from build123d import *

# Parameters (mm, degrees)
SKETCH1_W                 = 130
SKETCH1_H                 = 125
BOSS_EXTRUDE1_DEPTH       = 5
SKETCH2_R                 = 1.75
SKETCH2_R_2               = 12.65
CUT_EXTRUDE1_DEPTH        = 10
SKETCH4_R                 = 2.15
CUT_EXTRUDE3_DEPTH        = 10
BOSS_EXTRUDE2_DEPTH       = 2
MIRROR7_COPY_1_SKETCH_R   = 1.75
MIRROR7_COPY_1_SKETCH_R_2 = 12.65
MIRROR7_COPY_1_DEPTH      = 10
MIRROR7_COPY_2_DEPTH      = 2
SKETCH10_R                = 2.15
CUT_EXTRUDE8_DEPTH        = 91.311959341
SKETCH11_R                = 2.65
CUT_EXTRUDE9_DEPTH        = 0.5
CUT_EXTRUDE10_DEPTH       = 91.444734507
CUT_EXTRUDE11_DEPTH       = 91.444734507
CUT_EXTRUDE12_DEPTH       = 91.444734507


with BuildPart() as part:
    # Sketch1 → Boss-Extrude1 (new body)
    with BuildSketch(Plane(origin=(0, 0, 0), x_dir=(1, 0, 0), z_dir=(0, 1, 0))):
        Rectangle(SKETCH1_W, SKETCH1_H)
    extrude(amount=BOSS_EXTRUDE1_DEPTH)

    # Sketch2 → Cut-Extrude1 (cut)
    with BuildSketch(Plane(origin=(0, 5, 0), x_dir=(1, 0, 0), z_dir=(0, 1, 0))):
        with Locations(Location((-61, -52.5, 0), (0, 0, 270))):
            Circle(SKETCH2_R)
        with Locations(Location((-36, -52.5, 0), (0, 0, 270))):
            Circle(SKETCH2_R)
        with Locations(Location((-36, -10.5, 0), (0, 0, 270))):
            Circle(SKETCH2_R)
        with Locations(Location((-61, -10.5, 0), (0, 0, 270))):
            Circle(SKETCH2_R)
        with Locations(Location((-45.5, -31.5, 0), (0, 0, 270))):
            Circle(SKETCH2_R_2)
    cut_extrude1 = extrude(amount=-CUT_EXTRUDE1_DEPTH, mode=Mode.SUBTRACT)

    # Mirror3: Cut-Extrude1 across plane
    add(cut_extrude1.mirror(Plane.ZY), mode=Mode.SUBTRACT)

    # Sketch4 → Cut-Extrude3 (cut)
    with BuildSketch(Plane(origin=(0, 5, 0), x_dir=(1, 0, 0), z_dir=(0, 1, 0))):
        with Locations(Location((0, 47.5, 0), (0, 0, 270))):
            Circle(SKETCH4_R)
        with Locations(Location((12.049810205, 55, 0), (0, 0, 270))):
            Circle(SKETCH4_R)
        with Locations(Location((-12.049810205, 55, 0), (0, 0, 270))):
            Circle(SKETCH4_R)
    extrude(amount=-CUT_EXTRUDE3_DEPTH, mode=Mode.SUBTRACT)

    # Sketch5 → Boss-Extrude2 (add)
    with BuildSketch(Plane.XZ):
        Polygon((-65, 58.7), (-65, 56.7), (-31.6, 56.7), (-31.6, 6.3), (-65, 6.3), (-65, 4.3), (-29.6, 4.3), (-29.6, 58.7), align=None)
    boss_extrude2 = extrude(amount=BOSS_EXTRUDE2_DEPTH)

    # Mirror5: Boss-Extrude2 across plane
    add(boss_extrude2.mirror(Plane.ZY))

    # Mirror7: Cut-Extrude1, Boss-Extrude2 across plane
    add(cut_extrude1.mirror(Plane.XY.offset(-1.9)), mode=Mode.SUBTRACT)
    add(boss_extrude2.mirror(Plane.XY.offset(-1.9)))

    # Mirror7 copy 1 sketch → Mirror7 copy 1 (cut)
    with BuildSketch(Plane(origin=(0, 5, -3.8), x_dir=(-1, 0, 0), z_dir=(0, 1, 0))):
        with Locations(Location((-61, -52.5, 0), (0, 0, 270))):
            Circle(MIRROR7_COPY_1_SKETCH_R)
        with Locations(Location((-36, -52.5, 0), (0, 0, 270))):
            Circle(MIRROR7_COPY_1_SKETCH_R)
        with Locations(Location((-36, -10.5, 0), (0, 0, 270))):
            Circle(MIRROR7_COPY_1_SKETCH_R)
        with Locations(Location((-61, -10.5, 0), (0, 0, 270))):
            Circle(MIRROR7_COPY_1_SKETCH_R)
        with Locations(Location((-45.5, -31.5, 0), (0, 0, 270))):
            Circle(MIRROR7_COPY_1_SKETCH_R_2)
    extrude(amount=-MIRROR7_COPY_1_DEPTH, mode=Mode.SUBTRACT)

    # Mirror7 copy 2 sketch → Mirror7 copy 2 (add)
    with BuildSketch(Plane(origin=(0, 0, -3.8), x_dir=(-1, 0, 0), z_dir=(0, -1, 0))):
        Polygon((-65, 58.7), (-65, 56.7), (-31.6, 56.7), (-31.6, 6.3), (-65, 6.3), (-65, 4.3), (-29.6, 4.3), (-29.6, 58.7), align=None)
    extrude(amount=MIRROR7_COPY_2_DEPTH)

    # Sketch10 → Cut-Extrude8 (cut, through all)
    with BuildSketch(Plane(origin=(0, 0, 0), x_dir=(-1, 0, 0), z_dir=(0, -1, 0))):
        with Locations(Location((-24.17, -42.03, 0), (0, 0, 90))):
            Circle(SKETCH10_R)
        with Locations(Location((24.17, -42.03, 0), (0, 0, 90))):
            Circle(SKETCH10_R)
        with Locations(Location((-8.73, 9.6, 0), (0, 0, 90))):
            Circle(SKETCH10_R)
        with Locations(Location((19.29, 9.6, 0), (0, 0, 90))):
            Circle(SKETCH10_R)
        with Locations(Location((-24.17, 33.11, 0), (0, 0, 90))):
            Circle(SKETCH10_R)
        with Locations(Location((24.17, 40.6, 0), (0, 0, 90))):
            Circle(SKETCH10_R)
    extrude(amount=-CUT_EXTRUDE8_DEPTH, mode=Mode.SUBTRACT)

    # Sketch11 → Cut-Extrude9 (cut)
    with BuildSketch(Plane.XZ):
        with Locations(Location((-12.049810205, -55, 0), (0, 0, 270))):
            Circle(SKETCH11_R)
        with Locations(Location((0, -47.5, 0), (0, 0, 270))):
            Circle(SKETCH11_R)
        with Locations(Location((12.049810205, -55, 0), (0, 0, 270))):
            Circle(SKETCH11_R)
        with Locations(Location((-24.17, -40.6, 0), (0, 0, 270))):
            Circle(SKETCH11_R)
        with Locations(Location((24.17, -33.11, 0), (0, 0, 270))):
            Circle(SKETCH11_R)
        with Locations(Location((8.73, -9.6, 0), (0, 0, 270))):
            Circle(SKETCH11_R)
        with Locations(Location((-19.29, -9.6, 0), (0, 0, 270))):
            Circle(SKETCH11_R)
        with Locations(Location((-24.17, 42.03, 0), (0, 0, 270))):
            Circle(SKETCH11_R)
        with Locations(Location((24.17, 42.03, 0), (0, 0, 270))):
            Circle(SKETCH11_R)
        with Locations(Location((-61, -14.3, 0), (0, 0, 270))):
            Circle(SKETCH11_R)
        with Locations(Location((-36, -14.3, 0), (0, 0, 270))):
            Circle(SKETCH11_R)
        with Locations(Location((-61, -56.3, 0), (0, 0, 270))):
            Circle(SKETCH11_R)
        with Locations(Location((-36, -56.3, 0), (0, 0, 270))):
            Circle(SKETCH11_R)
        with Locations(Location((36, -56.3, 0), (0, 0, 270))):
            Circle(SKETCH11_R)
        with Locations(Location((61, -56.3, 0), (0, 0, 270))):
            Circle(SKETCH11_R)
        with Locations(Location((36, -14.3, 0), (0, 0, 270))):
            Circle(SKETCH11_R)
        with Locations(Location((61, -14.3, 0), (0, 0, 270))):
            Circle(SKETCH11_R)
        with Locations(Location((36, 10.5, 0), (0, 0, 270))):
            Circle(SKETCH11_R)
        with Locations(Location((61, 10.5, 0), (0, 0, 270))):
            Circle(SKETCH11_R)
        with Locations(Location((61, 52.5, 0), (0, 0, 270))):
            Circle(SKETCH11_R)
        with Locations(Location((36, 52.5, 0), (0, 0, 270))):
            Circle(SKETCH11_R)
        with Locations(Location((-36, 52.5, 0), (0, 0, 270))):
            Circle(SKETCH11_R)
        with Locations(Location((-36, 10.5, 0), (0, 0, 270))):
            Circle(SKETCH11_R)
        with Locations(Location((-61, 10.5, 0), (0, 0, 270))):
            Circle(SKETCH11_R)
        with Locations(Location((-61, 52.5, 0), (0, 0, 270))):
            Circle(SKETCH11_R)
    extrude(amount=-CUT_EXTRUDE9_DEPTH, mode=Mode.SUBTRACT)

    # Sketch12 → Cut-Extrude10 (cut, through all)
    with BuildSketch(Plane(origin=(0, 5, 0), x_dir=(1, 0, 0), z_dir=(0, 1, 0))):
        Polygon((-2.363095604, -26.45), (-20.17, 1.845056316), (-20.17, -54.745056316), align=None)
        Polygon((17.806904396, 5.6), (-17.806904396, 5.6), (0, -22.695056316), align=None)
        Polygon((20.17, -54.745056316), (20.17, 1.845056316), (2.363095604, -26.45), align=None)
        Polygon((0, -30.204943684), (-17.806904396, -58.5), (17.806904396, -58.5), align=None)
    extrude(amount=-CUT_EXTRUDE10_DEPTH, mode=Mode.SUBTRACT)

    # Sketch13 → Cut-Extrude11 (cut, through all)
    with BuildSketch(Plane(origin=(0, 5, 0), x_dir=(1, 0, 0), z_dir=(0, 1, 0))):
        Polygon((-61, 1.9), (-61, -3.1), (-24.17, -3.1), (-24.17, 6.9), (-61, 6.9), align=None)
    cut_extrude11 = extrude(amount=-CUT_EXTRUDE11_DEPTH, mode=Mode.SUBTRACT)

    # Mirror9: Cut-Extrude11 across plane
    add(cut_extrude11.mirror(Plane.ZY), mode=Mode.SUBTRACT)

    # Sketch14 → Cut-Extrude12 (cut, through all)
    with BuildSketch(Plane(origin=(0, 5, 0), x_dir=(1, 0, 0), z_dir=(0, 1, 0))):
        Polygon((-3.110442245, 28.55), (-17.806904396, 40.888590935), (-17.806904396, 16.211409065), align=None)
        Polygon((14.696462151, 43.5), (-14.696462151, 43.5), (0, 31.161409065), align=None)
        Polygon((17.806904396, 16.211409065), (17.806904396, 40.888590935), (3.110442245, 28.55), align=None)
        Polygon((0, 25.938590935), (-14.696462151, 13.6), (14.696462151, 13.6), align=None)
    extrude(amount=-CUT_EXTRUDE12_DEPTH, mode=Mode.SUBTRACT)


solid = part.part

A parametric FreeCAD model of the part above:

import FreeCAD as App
import Part
import Sketcher

V = App.Vector

doc = App.newDocument("Part")
body = doc.addObject("PartDesign::Body", "Body")

sketch1 = body.newObject("Sketcher::SketchObject", "Sketch")
sketch1.AttachmentSupport = (doc.getObject("XZ_Plane"), [""])
sketch1.MapMode = "FlatFace"
sketch1.addGeometry([
    Part.LineSegment(V(-65, -62, 0), V(-65, 62, 0)),
    Part.LineSegment(V(-65, 62, 0), V(65, 62, 0)),
    Part.LineSegment(V(65, 62, 0), V(65, -62, 0)),
    Part.LineSegment(V(65, -62, 0), V(-65, -62, 0)),
], False)
sketch1.addConstraint([
    Sketcher.Constraint("Coincident", 0, 2, 1, 1),
    Sketcher.Constraint("Coincident", 1, 2, 2, 1),
    Sketcher.Constraint("Coincident", 2, 2, 3, 1),
    Sketcher.Constraint("Coincident", 3, 2, 0, 1),
    Sketcher.Constraint("Vertical", 0),
    Sketcher.Constraint("Horizontal", 1),
    Sketcher.Constraint("Vertical", 2),
    Sketcher.Constraint("Horizontal", 3),
    Sketcher.Constraint("Symmetric", 0, 2, 2, 2, -1, 1),
    Sketcher.Constraint("DistanceX", 1, 1, 1, 2, 130.0),
    Sketcher.Constraint("DistanceY", 0, 1, 0, 2, 125.0),
])
pad1 = body.newObject("PartDesign::Pad", "Pad")
pad1.Profile = sketch1
pad1.Length = 5
pad1.Reversed = True

sketch2 = body.newObject("Sketcher::SketchObject", "Sketch001")
sketch2.AttachmentSupport = (doc.getObject("XZ_Plane"), [""])
sketch2.MapMode = "FlatFace"
sketch2.AttachmentOffset = App.Placement(V(0, 0, -5), App.Rotation())
sketch2.addGeometry([
    Part.Circle(V(-61, 52.5, 0), V(0, 0, 1), 1.8),
    Part.Circle(V(-36, 52.5, 0), V(0, 0, 1), 1.8),
    Part.Circle(V(-36, 10.5, 0), V(0, 0, 1), 1.8),
    Part.Circle(V(-61, 10.5, 0), V(0, 0, 1), 1.8),
    Part.Circle(V(-45.5, 31.5, 0), V(0, 0, 1), 12.7),
], False)
sketch2.addConstraint([
    Sketcher.Constraint("Equal", 0, 1),
    Sketcher.Constraint("Equal", 1, 2),
    Sketcher.Constraint("Equal", 2, 3),
    Sketcher.Constraint("Horizontal", 0, 3, 1, 3),
    Sketcher.Constraint("Horizontal", 2, 3, 3, 3),
    Sketcher.Constraint("Vertical", 1, 3, 2, 3),
    Sketcher.Constraint("Vertical", 0, 3, 3, 3),
    Sketcher.Constraint("Diameter", 0, 3.5),
    Sketcher.Constraint("Diameter", 4, 25.3),
    Sketcher.Constraint("DistanceX", 0, 3, -1, 1, 61.0),
    Sketcher.Constraint("DistanceX", 1, 3, -1, 1, 36.0),
    Sketcher.Constraint("DistanceY", 2, 3, 1, 3, 42.0),
    Sketcher.Constraint("DistanceY", 4, 3, 1, 3, 21.0),
    Sketcher.Constraint("DistanceY", -1, 1, 0, 3, 52.5),
    Sketcher.Constraint("DistanceX", 4, 3, -1, 1, 45.5),
])
pocket1 = body.newObject("PartDesign::Pocket", "Pocket")
pocket1.Profile = sketch2
pocket1.Length = 10
pocket1.Reversed = True
doc.recompute()

mirrored = body.newObject("PartDesign::Mirrored", "Mirrored")
mirrored.Originals = [pocket1]
mirrored.MirrorPlane = (doc.getObject("YZ_Plane"), [""])
body.Tip = mirrored

sketch3 = body.newObject("Sketcher::SketchObject", "Sketch002")
sketch3.AttachmentSupport = (doc.getObject("XZ_Plane"), [""])
sketch3.MapMode = "FlatFace"
sketch3.AttachmentOffset = App.Placement(V(0, 0, -5), App.Rotation())
sketch3.addGeometry([
    Part.Circle(V(0, -47.5, 0), V(0, 0, 1), 2.1),
    Part.Circle(V(12, -55, 0), V(0, 0, 1), 2.1),
    Part.Circle(V(-12, -55, 0), V(0, 0, 1), 2.1),
], False)
sketch3.addConstraint([
    Sketcher.Constraint("Equal", 0, 1),
    Sketcher.Constraint("Equal", 1, 2),
    Sketcher.Constraint("Symmetric", 1, 3, 2, 3, -2),
    Sketcher.Constraint("PointOnObject", 0, 3, -2),
    Sketcher.Constraint("Diameter", 0, 4.3),
    Sketcher.Constraint("DistanceY", 1, 3, -1, 1, 55.0),
    Sketcher.Constraint("DistanceY", 0, 3, -1, 1, 47.5),
    Sketcher.Constraint("DistanceX", -1, 1, 1, 3, 12.04981),
])
pocket2 = body.newObject("PartDesign::Pocket", "Pocket001")
pocket2.Profile = sketch3
pocket2.Length = 10
pocket2.Reversed = True

sketch4 = body.newObject("Sketcher::SketchObject", "Sketch003")
sketch4.AttachmentSupport = (doc.getObject("XZ_Plane"), [""])
sketch4.MapMode = "FlatFace"
sketch4.addGeometry([
    Part.LineSegment(V(-65, 58.7, 0), V(-65, 56.7, 0)),
    Part.LineSegment(V(-65, 56.7, 0), V(-31.6, 56.7, 0)),
    Part.LineSegment(V(-31.6, 56.7, 0), V(-31.6, 6.3, 0)),
    Part.LineSegment(V(-31.6, 6.3, 0), V(-65, 6.3, 0)),
    Part.LineSegment(V(-65, 6.3, 0), V(-65, 4.3, 0)),
    Part.LineSegment(V(-65, 4.3, 0), V(-29.6, 4.3, 0)),
    Part.LineSegment(V(-29.6, 4.3, 0), V(-29.6, 58.7, 0)),
    Part.LineSegment(V(-29.6, 58.7, 0), V(-65, 58.7, 0)),
], False)
sketch4.addConstraint([
    Sketcher.Constraint("Coincident", 0, 2, 1, 1),
    Sketcher.Constraint("Coincident", 1, 2, 2, 1),
    Sketcher.Constraint("Coincident", 2, 2, 3, 1),
    Sketcher.Constraint("Coincident", 3, 2, 4, 1),
    Sketcher.Constraint("Coincident", 4, 2, 5, 1),
    Sketcher.Constraint("Coincident", 5, 2, 6, 1),
    Sketcher.Constraint("Coincident", 6, 2, 7, 1),
    Sketcher.Constraint("Coincident", 7, 2, 0, 1),
    Sketcher.Constraint("Vertical", 0),
    Sketcher.Constraint("Horizontal", 1),
    Sketcher.Constraint("Vertical", 2),
    Sketcher.Constraint("Horizontal", 3),
    Sketcher.Constraint("Vertical", 4),
    Sketcher.Constraint("Horizontal", 5),
    Sketcher.Constraint("Vertical", 6),
    Sketcher.Constraint("Horizontal", 7),
    Sketcher.Constraint("Vertical", 0, 2, 3, 2),
    Sketcher.Constraint("Equal", 0, 4),
    Sketcher.Constraint("DistanceY", 0, 2, 0, 1, 2.0),
    Sketcher.Constraint("DistanceX", 1, 1, 1, 2, 33.4),
    Sketcher.Constraint("DistanceX", 5, 1, 5, 2, 35.4),
    Sketcher.Constraint("DistanceY", 2, 2, 2, 1, 50.4),
    Sketcher.Constraint("DistanceX", 0, 2, -1, 1, 65.0),
    Sketcher.Constraint("DistanceY", -1, 1, 0, 2, 56.7),
])
pad2 = body.newObject("PartDesign::Pad", "Pad001")
pad2.Profile = sketch4
pad2.Length = 2
doc.recompute()

mirrored2 = body.newObject("PartDesign::Mirrored", "Mirrored001")
mirrored2.Originals = [pad2]
mirrored2.MirrorPlane = (doc.getObject("YZ_Plane"), [""])
body.Tip = mirrored2
doc.recompute()

datumplane = body.newObject("PartDesign::Plane", "DatumPlane")
datumplane.AttachmentSupport = (doc.getObject("XY_Plane"), [""])
datumplane.MapMode = "FlatFace"
datumplane.AttachmentOffset = App.Placement(V(0, 0, -1.9), App.Rotation())
mirrored3 = body.newObject("PartDesign::Mirrored", "Mirrored002")
mirrored3.Originals = [pocket1, pad2]
mirrored3.MirrorPlane = (datumplane, [""])
body.Tip = mirrored3

sketch5 = body.newObject("Sketcher::SketchObject", "Sketch004")
sketch5.AttachmentSupport = (doc.getObject("XZ_Plane"), [""])
sketch5.MapMode = "FlatFace"
sketch5.AttachmentOffset = App.Placement(V(0, 0, -5), App.Rotation())
sketch5.addGeometry([
    Part.Circle(V(61, -56.3, 0), V(0, 0, 1), 1.8),
    Part.Circle(V(36, -56.3, 0), V(0, 0, 1), 1.8),
    Part.Circle(V(36, -14.3, 0), V(0, 0, 1), 1.8),
    Part.Circle(V(61, -14.3, 0), V(0, 0, 1), 1.8),
    Part.Circle(V(45.5, -35.3, 0), V(0, 0, 1), 12.7),
], False)
sketch5.addConstraint([
    Sketcher.Constraint("Equal", 0, 1),
    Sketcher.Constraint("Equal", 1, 2),
    Sketcher.Constraint("Equal", 2, 3),
    Sketcher.Constraint("Horizontal", 0, 3, 1, 3),
    Sketcher.Constraint("Horizontal", 2, 3, 3, 3),
    Sketcher.Constraint("Vertical", 1, 3, 2, 3),
    Sketcher.Constraint("Vertical", 0, 3, 3, 3),
    Sketcher.Constraint("Diameter", 0, 3.5),
    Sketcher.Constraint("Diameter", 4, 25.3),
    Sketcher.Constraint("DistanceX", -1, 1, 0, 3, 61.0),
    Sketcher.Constraint("DistanceX", -1, 1, 1, 3, 36.0),
    Sketcher.Constraint("DistanceY", 1, 3, 2, 3, 42.0),
    Sketcher.Constraint("DistanceY", 4, 3, 2, 3, 21.0),
    Sketcher.Constraint("DistanceY", 0, 3, -1, 1, 56.3),
    Sketcher.Constraint("DistanceX", -1, 1, 4, 3, 45.5),
])
pocket3 = body.newObject("PartDesign::Pocket", "Pocket002")
pocket3.Profile = sketch5
pocket3.Length = 10
pocket3.Reversed = True

sketch6 = body.newObject("Sketcher::SketchObject", "Sketch005")
sketch6.AttachmentSupport = (doc.getObject("XZ_Plane"), [""])
sketch6.MapMode = "FlatFace"
sketch6.addGeometry([
    Part.LineSegment(V(65, -62.5, 0), V(65, -60.5, 0)),
    Part.LineSegment(V(65, -60.5, 0), V(31.6, -60.5, 0)),
    Part.LineSegment(V(31.6, -60.5, 0), V(31.6, -10.1, 0)),
    Part.LineSegment(V(31.6, -10.1, 0), V(65, -10.1, 0)),
    Part.LineSegment(V(65, -10.1, 0), V(65, -8.1, 0)),
    Part.LineSegment(V(65, -8.1, 0), V(29.6, -8.1, 0)),
    Part.LineSegment(V(29.6, -8.1, 0), V(29.6, -62.5, 0)),
    Part.LineSegment(V(29.6, -62.5, 0), V(65, -62.5, 0)),
], False)
sketch6.addConstraint([
    Sketcher.Constraint("Coincident", 0, 2, 1, 1),
    Sketcher.Constraint("Coincident", 1, 2, 2, 1),
    Sketcher.Constraint("Coincident", 2, 2, 3, 1),
    Sketcher.Constraint("Coincident", 3, 2, 4, 1),
    Sketcher.Constraint("Coincident", 4, 2, 5, 1),
    Sketcher.Constraint("Coincident", 5, 2, 6, 1),
    Sketcher.Constraint("Coincident", 6, 2, 7, 1),
    Sketcher.Constraint("Coincident", 7, 2, 0, 1),
    Sketcher.Constraint("Vertical", 0),
    Sketcher.Constraint("Horizontal", 1),
    Sketcher.Constraint("Vertical", 2),
    Sketcher.Constraint("Horizontal", 3),
    Sketcher.Constraint("Vertical", 4),
    Sketcher.Constraint("Horizontal", 5),
    Sketcher.Constraint("Vertical", 6),
    Sketcher.Constraint("Horizontal", 7),
    Sketcher.Constraint("Vertical", 0, 2, 3, 2),
    Sketcher.Constraint("Equal", 0, 4),
    Sketcher.Constraint("DistanceY", 0, 1, 0, 2, 2.0),
    Sketcher.Constraint("DistanceX", 1, 2, 1, 1, 33.4),
    Sketcher.Constraint("DistanceX", 5, 2, 5, 1, 35.4),
    Sketcher.Constraint("DistanceY", 2, 1, 2, 2, 50.4),
    Sketcher.Constraint("DistanceX", -1, 1, 0, 2, 65.0),
    Sketcher.Constraint("DistanceY", 0, 2, -1, 1, 60.5),
])
pad3 = body.newObject("PartDesign::Pad", "Pad002")
pad3.Profile = sketch6
pad3.Length = 2

sketch7 = body.newObject("Sketcher::SketchObject", "Sketch006")
sketch7.AttachmentSupport = (doc.getObject("XZ_Plane"), [""])
sketch7.MapMode = "FlatFace"
sketch7.addGeometry([
    Part.Circle(V(24.2, 42, 0), V(0, 0, 1), 2.1),
    Part.Circle(V(-24.2, 42, 0), V(0, 0, 1), 2.1),
    Part.Circle(V(8.7, -9.6, 0), V(0, 0, 1), 2.1),
    Part.Circle(V(-19.3, -9.6, 0), V(0, 0, 1), 2.1),
    Part.Circle(V(24.2, -33.1, 0), V(0, 0, 1), 2.1),
    Part.Circle(V(-24.2, -40.6, 0), V(0, 0, 1), 2.1),
], False)
sketch7.addConstraint([
    Sketcher.Constraint("Equal", 0, 1),
    Sketcher.Constraint("Equal", 1, 2),
    Sketcher.Constraint("Equal", 2, 3),
    Sketcher.Constraint("Equal", 3, 4),
    Sketcher.Constraint("Equal", 4, 5),
    Sketcher.Constraint("Symmetric", 0, 3, 1, 3, -2),
    Sketcher.Constraint("Horizontal", 2, 3, 3, 3),
    Sketcher.Constraint("Vertical", 0, 3, 4, 3),
    Sketcher.Constraint("Vertical", 1, 3, 5, 3),
    Sketcher.Constraint("Diameter", 0, 4.3),
    Sketcher.Constraint("DistanceY", 5, 3, 3, 3, 31.0),
    Sketcher.Constraint("DistanceY", 2, 3, -1, 1, 9.6),
    Sketcher.Constraint("DistanceX", 1, 3, 2, 3, 32.9),
    Sketcher.Constraint("DistanceX", -1, 1, 0, 3, 24.17),
    Sketcher.Constraint("DistanceY", -1, 1, 0, 3, 42.03),
    Sketcher.Constraint("DistanceX", 3, 3, -1, 1, 19.29),
    Sketcher.Constraint("DistanceY", 4, 3, -1, 1, 33.11),
])
pocket4 = body.newObject("PartDesign::Pocket", "Pocket003")
pocket4.Profile = sketch7
pocket4.Type = "ThroughAll"

sketch8 = body.newObject("Sketcher::SketchObject", "Sketch007")
sketch8.AttachmentSupport = (doc.getObject("XZ_Plane"), [""])
sketch8.MapMode = "FlatFace"
sketch8.addGeometry([
    Part.Circle(V(-12, -55, 0), V(0, 0, 1), 2.6),
    Part.Circle(V(0, -47.5, 0), V(0, 0, 1), 2.6),
    Part.Circle(V(12, -55, 0), V(0, 0, 1), 2.6),
    Part.Circle(V(-24.2, -40.6, 0), V(0, 0, 1), 2.6),
    Part.Circle(V(24.2, -33.1, 0), V(0, 0, 1), 2.6),
    Part.Circle(V(8.7, -9.6, 0), V(0, 0, 1), 2.6),
    Part.Circle(V(-19.3, -9.6, 0), V(0, 0, 1), 2.6),
    Part.Circle(V(-24.2, 42, 0), V(0, 0, 1), 2.6),
    Part.Circle(V(24.2, 42, 0), V(0, 0, 1), 2.6),
    Part.Circle(V(-61, -14.3, 0), V(0, 0, 1), 2.6),
    Part.Circle(V(-36, -14.3, 0), V(0, 0, 1), 2.6),
    Part.Circle(V(-61, -56.3, 0), V(0, 0, 1), 2.6),
    Part.Circle(V(-36, -56.3, 0), V(0, 0, 1), 2.6),
    Part.Circle(V(36, -56.3, 0), V(0, 0, 1), 2.6),
    Part.Circle(V(61, -56.3, 0), V(0, 0, 1), 2.6),
    Part.Circle(V(36, -14.3, 0), V(0, 0, 1), 2.6),
    Part.Circle(V(61, -14.3, 0), V(0, 0, 1), 2.6),
    Part.Circle(V(36, 10.5, 0), V(0, 0, 1), 2.6),
    Part.Circle(V(61, 10.5, 0), V(0, 0, 1), 2.6),
    Part.Circle(V(61, 52.5, 0), V(0, 0, 1), 2.6),
    Part.Circle(V(36, 52.5, 0), V(0, 0, 1), 2.6),
    Part.Circle(V(-36, 52.5, 0), V(0, 0, 1), 2.6),
    Part.Circle(V(-36, 10.5, 0), V(0, 0, 1), 2.6),
    Part.Circle(V(-61, 10.5, 0), V(0, 0, 1), 2.6),
    Part.Circle(V(-61, 52.5, 0), V(0, 0, 1), 2.6),
], False)
sketch8.addConstraint([
    Sketcher.Constraint("Equal", 0, 1),
    Sketcher.Constraint("Equal", 1, 2),
    Sketcher.Constraint("Equal", 2, 3),
    Sketcher.Constraint("Equal", 3, 4),
    Sketcher.Constraint("Equal", 4, 5),
    Sketcher.Constraint("Equal", 5, 6),
    Sketcher.Constraint("Equal", 6, 7),
    Sketcher.Constraint("Equal", 7, 8),
    Sketcher.Constraint("Equal", 8, 9),
    Sketcher.Constraint("Equal", 9, 10),
    Sketcher.Constraint("Equal", 10, 11),
    Sketcher.Constraint("Equal", 11, 12),
    Sketcher.Constraint("Equal", 12, 13),
    Sketcher.Constraint("Equal", 13, 14),
    Sketcher.Constraint("Equal", 14, 15),
    Sketcher.Constraint("Equal", 15, 16),
    Sketcher.Constraint("Equal", 16, 17),
    Sketcher.Constraint("Equal", 17, 18),
    Sketcher.Constraint("Equal", 18, 19),
    Sketcher.Constraint("Equal", 19, 20),
    Sketcher.Constraint("Equal", 20, 21),
    Sketcher.Constraint("Equal", 21, 22),
    Sketcher.Constraint("Equal", 22, 23),
    Sketcher.Constraint("Equal", 23, 24),
    Sketcher.Constraint("Symmetric", 0, 3, 2, 3, -2),
    Sketcher.Constraint("Symmetric", 7, 3, 8, 3, -2),
    Sketcher.Constraint("Symmetric", 12, 3, 13, 3, -2),
    Sketcher.Constraint("Symmetric", 11, 3, 14, 3, -2),
    Sketcher.Constraint("Symmetric", 10, 3, 15, 3, -2),
    Sketcher.Constraint("Symmetric", 9, 3, 16, 3, -2),
    Sketcher.Constraint("Symmetric", 20, 3, 21, 3, -2),
    Sketcher.Constraint("Symmetric", 17, 3, 22, 3, -2),
    Sketcher.Constraint("Symmetric", 18, 3, 23, 3, -2),
    Sketcher.Constraint("Symmetric", 19, 3, 24, 3, -2),
    Sketcher.Constraint("PointOnObject", 1, 3, -2),
    Sketcher.Constraint("Horizontal", 5, 3, 6, 3),
    Sketcher.Constraint("Horizontal", 9, 3, 10, 3),
    Sketcher.Constraint("Horizontal", 11, 3, 12, 3),
    Sketcher.Constraint("Horizontal", 17, 3, 18, 3),
    Sketcher.Constraint("Horizontal", 19, 3, 20, 3),
    Sketcher.Constraint("Vertical", 3, 3, 7, 3),
    Sketcher.Constraint("Vertical", 4, 3, 8, 3),
    Sketcher.Constraint("Vertical", 9, 3, 11, 3),
    Sketcher.Constraint("Vertical", 10, 3, 12, 3),
    Sketcher.Constraint("Vertical", 15, 3, 17, 3),
    Sketcher.Constraint("Vertical", 16, 3, 18, 3),
    Sketcher.Constraint("Vertical", 18, 3, 19, 3),
    Sketcher.Constraint("Vertical", 17, 3, 20, 3),
    Sketcher.Constraint("Diameter", 0, 5.3),
    Sketcher.Constraint("DistanceY", 0, 3, -1, 1, 55.0),
    Sketcher.Constraint("DistanceX", 9, 3, -1, 1, 61.0),
    Sketcher.Constraint("DistanceX", 10, 3, -1, 1, 36.0),
    Sketcher.Constraint("DistanceY", 3, 3, 5, 3, 31.0),
    Sketcher.Constraint("DistanceY", 11, 3, 9, 3, 42.0),
    Sketcher.Constraint("DistanceY", 18, 3, 19, 3, 42.0),
    Sketcher.Constraint("DistanceY", 1, 3, -1, 1, 47.5),
    Sketcher.Constraint("DistanceY", 3, 3, -1, 1, 40.6),
    Sketcher.Constraint("DistanceY", 9, 3, -1, 1, 14.3),
    Sketcher.Constraint("DistanceY", -1, 1, 17, 3, 10.5),
    Sketcher.Constraint("DistanceX", 3, 3, 5, 3, 32.9),
    Sketcher.Constraint("DistanceX", 3, 3, -1, 1, 24.17),
    Sketcher.Constraint("DistanceY", 4, 3, -1, 1, 33.11),
    Sketcher.Constraint("DistanceX", 6, 3, -1, 1, 19.29),
    Sketcher.Constraint("DistanceY", -1, 1, 7, 3, 42.03),
    Sketcher.Constraint("DistanceX", 0, 3, -1, 1, 12.04981),
])
pocket5 = body.newObject("PartDesign::Pocket", "Pocket004")
pocket5.Profile = sketch8
pocket5.Length = 0.5

sketch9 = body.newObject("Sketcher::SketchObject", "Sketch008")
sketch9.AttachmentSupport = (doc.getObject("XZ_Plane"), [""])
sketch9.MapMode = "FlatFace"
sketch9.AttachmentOffset = App.Placement(V(0, 0, -5), App.Rotation())
sketch9.addGeometry([
    Part.LineSegment(V(-2, 26, 0), V(-20, -2, 0)),
    Part.LineSegment(V(-20, -2, 0), V(-20, 55, 0)),
    Part.LineSegment(V(-20, 55, 0), V(-2, 26, 0)),
    Part.LineSegment(V(18, -6, 0), V(-18, -6, 0)),
    Part.LineSegment(V(-18, -6, 0), V(0, 23, 0)),
    Part.LineSegment(V(0, 23, 0), V(18, -6, 0)),
    Part.LineSegment(V(20, 55, 0), V(20, -2, 0)),
    Part.LineSegment(V(20, -2, 0), V(2, 26, 0)),
    Part.LineSegment(V(2, 26, 0), V(20, 55, 0)),
    Part.LineSegment(V(0, 30, 0), V(-18, 58, 0)),
    Part.LineSegment(V(-18, 58, 0), V(18, 58, 0)),
    Part.LineSegment(V(18, 58, 0), V(0, 30, 0)),
], False)
sketch9.addConstraint([
    Sketcher.Constraint("Coincident", 0, 2, 1, 1),
    Sketcher.Constraint("Coincident", 1, 2, 2, 1),
    Sketcher.Constraint("Coincident", 2, 2, 0, 1),
    Sketcher.Constraint("Coincident", 3, 2, 4, 1),
    Sketcher.Constraint("Coincident", 4, 2, 5, 1),
    Sketcher.Constraint("Coincident", 5, 2, 3, 1),
    Sketcher.Constraint("Coincident", 6, 2, 7, 1),
    Sketcher.Constraint("Coincident", 7, 2, 8, 1),
    Sketcher.Constraint("Coincident", 8, 2, 6, 1),
    Sketcher.Constraint("Coincident", 9, 2, 10, 1),
    Sketcher.Constraint("Coincident", 10, 2, 11, 1),
    Sketcher.Constraint("Coincident", 11, 2, 9, 1),
    Sketcher.Constraint("Vertical", 1),
    Sketcher.Constraint("Horizontal", 3),
    Sketcher.Constraint("Vertical", 6),
    Sketcher.Constraint("Horizontal", 10),
    Sketcher.Constraint("Symmetric", 0, 2, 6, 2, -2),
    Sketcher.Constraint("Symmetric", 2, 2, 7, 2, -2),
    Sketcher.Constraint("PointOnObject", 4, 2, -2),
    Sketcher.Constraint("PointOnObject", 11, 2, -2),
    Sketcher.Constraint("Parallel", 0, 4),
    Sketcher.Constraint("Parallel", 2, 5),
    Sketcher.Constraint("Parallel", 5, 7),
    Sketcher.Constraint("Parallel", 4, 8),
    Sketcher.Constraint("Parallel", 7, 9),
    Sketcher.Constraint("Parallel", 8, 11),
    Sketcher.Constraint("Vertical", 3, 2, 9, 2),
    Sketcher.Constraint("Equal", 2, 4),
    Sketcher.Constraint("DistanceY", 3, 2, -1, 1, 5.6),
    Sketcher.Constraint("DistanceY", -1, 1, 9, 2, 58.5),
    Sketcher.Constraint("DistanceX", 0, 2, -1, 1, 20.17),
    Sketcher.Constraint("DistanceY", -1, 1, 2, 2, 26.45),
    Sketcher.Constraint("DistanceX", 3, 2, 3, 1, 35.613809),
    Sketcher.Constraint("Distance", 0, 33.431962),
])
pocket6 = body.newObject("PartDesign::Pocket", "Pocket005")
pocket6.Profile = sketch9
pocket6.Type = "ThroughAll"
pocket6.Reversed = True

sketch10 = body.newObject("Sketcher::SketchObject", "Sketch009")
sketch10.AttachmentSupport = (doc.getObject("XZ_Plane"), [""])
sketch10.MapMode = "FlatFace"
sketch10.AttachmentOffset = App.Placement(V(0, 0, -5), App.Rotation())
sketch10.addGeometry([
    Part.LineSegment(V(-61, 3, 0), V(-24, 3, 0)),
    Part.LineSegment(V(-24, 3, 0), V(-24, -7, 0)),
    Part.LineSegment(V(-24, -7, 0), V(-61, -7, 0)),
    Part.LineSegment(V(-61, -7, 0), V(-61, 3, 0)),
], False)
sketch10.addConstraint([
    Sketcher.Constraint("Coincident", 0, 2, 1, 1),
    Sketcher.Constraint("Coincident", 1, 2, 2, 1),
    Sketcher.Constraint("Coincident", 2, 2, 3, 1),
    Sketcher.Constraint("Coincident", 3, 2, 0, 1),
    Sketcher.Constraint("Horizontal", 0),
    Sketcher.Constraint("Vertical", 1),
    Sketcher.Constraint("Horizontal", 2),
    Sketcher.Constraint("Vertical", 3),
    Sketcher.Constraint("DistanceY", 1, 2, 1, 1, 10.0),
    Sketcher.Constraint("DistanceX", 2, 2, -1, 1, 61.0),
    Sketcher.Constraint("DistanceX", 0, 1, 0, 2, 36.83),
    Sketcher.Constraint("DistanceY", -1, 1, 0, 2, 3.1),
])
pocket7 = body.newObject("PartDesign::Pocket", "Pocket006")
pocket7.Profile = sketch10
pocket7.Type = "ThroughAll"
pocket7.Reversed = True
doc.recompute()

mirrored4 = body.newObject("PartDesign::Mirrored", "Mirrored003")
mirrored4.Originals = [pocket7]
mirrored4.MirrorPlane = (doc.getObject("YZ_Plane"), [""])
body.Tip = mirrored4

sketch11 = body.newObject("Sketcher::SketchObject", "Sketch010")
sketch11.AttachmentSupport = (doc.getObject("XZ_Plane"), [""])
sketch11.MapMode = "FlatFace"
sketch11.AttachmentOffset = App.Placement(V(0, 0, -5), App.Rotation())
sketch11.addGeometry([
    Part.LineSegment(V(-3, -29, 0), V(-18, -41, 0)),
    Part.LineSegment(V(-18, -41, 0), V(-18, -16, 0)),
    Part.LineSegment(V(-18, -16, 0), V(-3, -29, 0)),
    Part.LineSegment(V(15, -44, 0), V(-15, -44, 0)),
    Part.LineSegment(V(-15, -44, 0), V(0, -31, 0)),
    Part.LineSegment(V(0, -31, 0), V(15, -44, 0)),
    Part.LineSegment(V(18, -16, 0), V(18, -41, 0)),
    Part.LineSegment(V(18, -41, 0), V(3, -29, 0)),
    Part.LineSegment(V(3, -29, 0), V(18, -16, 0)),
    Part.LineSegment(V(0, -26, 0), V(-15, -14, 0)),
    Part.LineSegment(V(-15, -14, 0), V(15, -14, 0)),
    Part.LineSegment(V(15, -14, 0), V(0, -26, 0)),
], False)
sketch11.addConstraint([
    Sketcher.Constraint("Coincident", 0, 2, 1, 1),
    Sketcher.Constraint("Coincident", 1, 2, 2, 1),
    Sketcher.Constraint("Coincident", 2, 2, 0, 1),
    Sketcher.Constraint("Coincident", 3, 2, 4, 1),
    Sketcher.Constraint("Coincident", 4, 2, 5, 1),
    Sketcher.Constraint("Coincident", 5, 2, 3, 1),
    Sketcher.Constraint("Coincident", 6, 2, 7, 1),
    Sketcher.Constraint("Coincident", 7, 2, 8, 1),
    Sketcher.Constraint("Coincident", 8, 2, 6, 1),
    Sketcher.Constraint("Coincident", 9, 2, 10, 1),
    Sketcher.Constraint("Coincident", 10, 2, 11, 1),
    Sketcher.Constraint("Coincident", 11, 2, 9, 1),
    Sketcher.Constraint("Vertical", 1),
    Sketcher.Constraint("Horizontal", 3),
    Sketcher.Constraint("Vertical", 6),
    Sketcher.Constraint("Horizontal", 10),
    Sketcher.Constraint("Symmetric", 0, 2, 6, 2, -2),
    Sketcher.Constraint("Symmetric", 2, 2, 7, 2, -2),
    Sketcher.Constraint("PointOnObject", 4, 2, -2),
    Sketcher.Constraint("PointOnObject", 11, 2, -2),
    Sketcher.Constraint("Parallel", 0, 4),
    Sketcher.Constraint("Parallel", 2, 5),
    Sketcher.Constraint("Parallel", 5, 7),
    Sketcher.Constraint("Parallel", 4, 8),
    Sketcher.Constraint("Parallel", 7, 9),
    Sketcher.Constraint("Parallel", 8, 11),
    Sketcher.Constraint("Vertical", 3, 2, 9, 2),
    Sketcher.Constraint("Equal", 2, 4),
    Sketcher.Constraint("DistanceY", 3, 2, -1, 1, 43.5),
    Sketcher.Constraint("DistanceY", 9, 2, -1, 1, 13.6),
    Sketcher.Constraint("DistanceY", 2, 2, -1, 1, 28.55),
    Sketcher.Constraint("DistanceY", 1, 1, 1, 2, 24.677182),
    Sketcher.Constraint("DistanceX", 3, 2, 3, 1, 29.392924),
    Sketcher.Constraint("DistanceX", 3, 2, 2, 2, 11.58602),
])
pocket8 = body.newObject("PartDesign::Pocket", "Pocket007")
pocket8.Profile = sketch11
pocket8.Type = "ThroughAll"
pocket8.Reversed = True

doc.recompute()
